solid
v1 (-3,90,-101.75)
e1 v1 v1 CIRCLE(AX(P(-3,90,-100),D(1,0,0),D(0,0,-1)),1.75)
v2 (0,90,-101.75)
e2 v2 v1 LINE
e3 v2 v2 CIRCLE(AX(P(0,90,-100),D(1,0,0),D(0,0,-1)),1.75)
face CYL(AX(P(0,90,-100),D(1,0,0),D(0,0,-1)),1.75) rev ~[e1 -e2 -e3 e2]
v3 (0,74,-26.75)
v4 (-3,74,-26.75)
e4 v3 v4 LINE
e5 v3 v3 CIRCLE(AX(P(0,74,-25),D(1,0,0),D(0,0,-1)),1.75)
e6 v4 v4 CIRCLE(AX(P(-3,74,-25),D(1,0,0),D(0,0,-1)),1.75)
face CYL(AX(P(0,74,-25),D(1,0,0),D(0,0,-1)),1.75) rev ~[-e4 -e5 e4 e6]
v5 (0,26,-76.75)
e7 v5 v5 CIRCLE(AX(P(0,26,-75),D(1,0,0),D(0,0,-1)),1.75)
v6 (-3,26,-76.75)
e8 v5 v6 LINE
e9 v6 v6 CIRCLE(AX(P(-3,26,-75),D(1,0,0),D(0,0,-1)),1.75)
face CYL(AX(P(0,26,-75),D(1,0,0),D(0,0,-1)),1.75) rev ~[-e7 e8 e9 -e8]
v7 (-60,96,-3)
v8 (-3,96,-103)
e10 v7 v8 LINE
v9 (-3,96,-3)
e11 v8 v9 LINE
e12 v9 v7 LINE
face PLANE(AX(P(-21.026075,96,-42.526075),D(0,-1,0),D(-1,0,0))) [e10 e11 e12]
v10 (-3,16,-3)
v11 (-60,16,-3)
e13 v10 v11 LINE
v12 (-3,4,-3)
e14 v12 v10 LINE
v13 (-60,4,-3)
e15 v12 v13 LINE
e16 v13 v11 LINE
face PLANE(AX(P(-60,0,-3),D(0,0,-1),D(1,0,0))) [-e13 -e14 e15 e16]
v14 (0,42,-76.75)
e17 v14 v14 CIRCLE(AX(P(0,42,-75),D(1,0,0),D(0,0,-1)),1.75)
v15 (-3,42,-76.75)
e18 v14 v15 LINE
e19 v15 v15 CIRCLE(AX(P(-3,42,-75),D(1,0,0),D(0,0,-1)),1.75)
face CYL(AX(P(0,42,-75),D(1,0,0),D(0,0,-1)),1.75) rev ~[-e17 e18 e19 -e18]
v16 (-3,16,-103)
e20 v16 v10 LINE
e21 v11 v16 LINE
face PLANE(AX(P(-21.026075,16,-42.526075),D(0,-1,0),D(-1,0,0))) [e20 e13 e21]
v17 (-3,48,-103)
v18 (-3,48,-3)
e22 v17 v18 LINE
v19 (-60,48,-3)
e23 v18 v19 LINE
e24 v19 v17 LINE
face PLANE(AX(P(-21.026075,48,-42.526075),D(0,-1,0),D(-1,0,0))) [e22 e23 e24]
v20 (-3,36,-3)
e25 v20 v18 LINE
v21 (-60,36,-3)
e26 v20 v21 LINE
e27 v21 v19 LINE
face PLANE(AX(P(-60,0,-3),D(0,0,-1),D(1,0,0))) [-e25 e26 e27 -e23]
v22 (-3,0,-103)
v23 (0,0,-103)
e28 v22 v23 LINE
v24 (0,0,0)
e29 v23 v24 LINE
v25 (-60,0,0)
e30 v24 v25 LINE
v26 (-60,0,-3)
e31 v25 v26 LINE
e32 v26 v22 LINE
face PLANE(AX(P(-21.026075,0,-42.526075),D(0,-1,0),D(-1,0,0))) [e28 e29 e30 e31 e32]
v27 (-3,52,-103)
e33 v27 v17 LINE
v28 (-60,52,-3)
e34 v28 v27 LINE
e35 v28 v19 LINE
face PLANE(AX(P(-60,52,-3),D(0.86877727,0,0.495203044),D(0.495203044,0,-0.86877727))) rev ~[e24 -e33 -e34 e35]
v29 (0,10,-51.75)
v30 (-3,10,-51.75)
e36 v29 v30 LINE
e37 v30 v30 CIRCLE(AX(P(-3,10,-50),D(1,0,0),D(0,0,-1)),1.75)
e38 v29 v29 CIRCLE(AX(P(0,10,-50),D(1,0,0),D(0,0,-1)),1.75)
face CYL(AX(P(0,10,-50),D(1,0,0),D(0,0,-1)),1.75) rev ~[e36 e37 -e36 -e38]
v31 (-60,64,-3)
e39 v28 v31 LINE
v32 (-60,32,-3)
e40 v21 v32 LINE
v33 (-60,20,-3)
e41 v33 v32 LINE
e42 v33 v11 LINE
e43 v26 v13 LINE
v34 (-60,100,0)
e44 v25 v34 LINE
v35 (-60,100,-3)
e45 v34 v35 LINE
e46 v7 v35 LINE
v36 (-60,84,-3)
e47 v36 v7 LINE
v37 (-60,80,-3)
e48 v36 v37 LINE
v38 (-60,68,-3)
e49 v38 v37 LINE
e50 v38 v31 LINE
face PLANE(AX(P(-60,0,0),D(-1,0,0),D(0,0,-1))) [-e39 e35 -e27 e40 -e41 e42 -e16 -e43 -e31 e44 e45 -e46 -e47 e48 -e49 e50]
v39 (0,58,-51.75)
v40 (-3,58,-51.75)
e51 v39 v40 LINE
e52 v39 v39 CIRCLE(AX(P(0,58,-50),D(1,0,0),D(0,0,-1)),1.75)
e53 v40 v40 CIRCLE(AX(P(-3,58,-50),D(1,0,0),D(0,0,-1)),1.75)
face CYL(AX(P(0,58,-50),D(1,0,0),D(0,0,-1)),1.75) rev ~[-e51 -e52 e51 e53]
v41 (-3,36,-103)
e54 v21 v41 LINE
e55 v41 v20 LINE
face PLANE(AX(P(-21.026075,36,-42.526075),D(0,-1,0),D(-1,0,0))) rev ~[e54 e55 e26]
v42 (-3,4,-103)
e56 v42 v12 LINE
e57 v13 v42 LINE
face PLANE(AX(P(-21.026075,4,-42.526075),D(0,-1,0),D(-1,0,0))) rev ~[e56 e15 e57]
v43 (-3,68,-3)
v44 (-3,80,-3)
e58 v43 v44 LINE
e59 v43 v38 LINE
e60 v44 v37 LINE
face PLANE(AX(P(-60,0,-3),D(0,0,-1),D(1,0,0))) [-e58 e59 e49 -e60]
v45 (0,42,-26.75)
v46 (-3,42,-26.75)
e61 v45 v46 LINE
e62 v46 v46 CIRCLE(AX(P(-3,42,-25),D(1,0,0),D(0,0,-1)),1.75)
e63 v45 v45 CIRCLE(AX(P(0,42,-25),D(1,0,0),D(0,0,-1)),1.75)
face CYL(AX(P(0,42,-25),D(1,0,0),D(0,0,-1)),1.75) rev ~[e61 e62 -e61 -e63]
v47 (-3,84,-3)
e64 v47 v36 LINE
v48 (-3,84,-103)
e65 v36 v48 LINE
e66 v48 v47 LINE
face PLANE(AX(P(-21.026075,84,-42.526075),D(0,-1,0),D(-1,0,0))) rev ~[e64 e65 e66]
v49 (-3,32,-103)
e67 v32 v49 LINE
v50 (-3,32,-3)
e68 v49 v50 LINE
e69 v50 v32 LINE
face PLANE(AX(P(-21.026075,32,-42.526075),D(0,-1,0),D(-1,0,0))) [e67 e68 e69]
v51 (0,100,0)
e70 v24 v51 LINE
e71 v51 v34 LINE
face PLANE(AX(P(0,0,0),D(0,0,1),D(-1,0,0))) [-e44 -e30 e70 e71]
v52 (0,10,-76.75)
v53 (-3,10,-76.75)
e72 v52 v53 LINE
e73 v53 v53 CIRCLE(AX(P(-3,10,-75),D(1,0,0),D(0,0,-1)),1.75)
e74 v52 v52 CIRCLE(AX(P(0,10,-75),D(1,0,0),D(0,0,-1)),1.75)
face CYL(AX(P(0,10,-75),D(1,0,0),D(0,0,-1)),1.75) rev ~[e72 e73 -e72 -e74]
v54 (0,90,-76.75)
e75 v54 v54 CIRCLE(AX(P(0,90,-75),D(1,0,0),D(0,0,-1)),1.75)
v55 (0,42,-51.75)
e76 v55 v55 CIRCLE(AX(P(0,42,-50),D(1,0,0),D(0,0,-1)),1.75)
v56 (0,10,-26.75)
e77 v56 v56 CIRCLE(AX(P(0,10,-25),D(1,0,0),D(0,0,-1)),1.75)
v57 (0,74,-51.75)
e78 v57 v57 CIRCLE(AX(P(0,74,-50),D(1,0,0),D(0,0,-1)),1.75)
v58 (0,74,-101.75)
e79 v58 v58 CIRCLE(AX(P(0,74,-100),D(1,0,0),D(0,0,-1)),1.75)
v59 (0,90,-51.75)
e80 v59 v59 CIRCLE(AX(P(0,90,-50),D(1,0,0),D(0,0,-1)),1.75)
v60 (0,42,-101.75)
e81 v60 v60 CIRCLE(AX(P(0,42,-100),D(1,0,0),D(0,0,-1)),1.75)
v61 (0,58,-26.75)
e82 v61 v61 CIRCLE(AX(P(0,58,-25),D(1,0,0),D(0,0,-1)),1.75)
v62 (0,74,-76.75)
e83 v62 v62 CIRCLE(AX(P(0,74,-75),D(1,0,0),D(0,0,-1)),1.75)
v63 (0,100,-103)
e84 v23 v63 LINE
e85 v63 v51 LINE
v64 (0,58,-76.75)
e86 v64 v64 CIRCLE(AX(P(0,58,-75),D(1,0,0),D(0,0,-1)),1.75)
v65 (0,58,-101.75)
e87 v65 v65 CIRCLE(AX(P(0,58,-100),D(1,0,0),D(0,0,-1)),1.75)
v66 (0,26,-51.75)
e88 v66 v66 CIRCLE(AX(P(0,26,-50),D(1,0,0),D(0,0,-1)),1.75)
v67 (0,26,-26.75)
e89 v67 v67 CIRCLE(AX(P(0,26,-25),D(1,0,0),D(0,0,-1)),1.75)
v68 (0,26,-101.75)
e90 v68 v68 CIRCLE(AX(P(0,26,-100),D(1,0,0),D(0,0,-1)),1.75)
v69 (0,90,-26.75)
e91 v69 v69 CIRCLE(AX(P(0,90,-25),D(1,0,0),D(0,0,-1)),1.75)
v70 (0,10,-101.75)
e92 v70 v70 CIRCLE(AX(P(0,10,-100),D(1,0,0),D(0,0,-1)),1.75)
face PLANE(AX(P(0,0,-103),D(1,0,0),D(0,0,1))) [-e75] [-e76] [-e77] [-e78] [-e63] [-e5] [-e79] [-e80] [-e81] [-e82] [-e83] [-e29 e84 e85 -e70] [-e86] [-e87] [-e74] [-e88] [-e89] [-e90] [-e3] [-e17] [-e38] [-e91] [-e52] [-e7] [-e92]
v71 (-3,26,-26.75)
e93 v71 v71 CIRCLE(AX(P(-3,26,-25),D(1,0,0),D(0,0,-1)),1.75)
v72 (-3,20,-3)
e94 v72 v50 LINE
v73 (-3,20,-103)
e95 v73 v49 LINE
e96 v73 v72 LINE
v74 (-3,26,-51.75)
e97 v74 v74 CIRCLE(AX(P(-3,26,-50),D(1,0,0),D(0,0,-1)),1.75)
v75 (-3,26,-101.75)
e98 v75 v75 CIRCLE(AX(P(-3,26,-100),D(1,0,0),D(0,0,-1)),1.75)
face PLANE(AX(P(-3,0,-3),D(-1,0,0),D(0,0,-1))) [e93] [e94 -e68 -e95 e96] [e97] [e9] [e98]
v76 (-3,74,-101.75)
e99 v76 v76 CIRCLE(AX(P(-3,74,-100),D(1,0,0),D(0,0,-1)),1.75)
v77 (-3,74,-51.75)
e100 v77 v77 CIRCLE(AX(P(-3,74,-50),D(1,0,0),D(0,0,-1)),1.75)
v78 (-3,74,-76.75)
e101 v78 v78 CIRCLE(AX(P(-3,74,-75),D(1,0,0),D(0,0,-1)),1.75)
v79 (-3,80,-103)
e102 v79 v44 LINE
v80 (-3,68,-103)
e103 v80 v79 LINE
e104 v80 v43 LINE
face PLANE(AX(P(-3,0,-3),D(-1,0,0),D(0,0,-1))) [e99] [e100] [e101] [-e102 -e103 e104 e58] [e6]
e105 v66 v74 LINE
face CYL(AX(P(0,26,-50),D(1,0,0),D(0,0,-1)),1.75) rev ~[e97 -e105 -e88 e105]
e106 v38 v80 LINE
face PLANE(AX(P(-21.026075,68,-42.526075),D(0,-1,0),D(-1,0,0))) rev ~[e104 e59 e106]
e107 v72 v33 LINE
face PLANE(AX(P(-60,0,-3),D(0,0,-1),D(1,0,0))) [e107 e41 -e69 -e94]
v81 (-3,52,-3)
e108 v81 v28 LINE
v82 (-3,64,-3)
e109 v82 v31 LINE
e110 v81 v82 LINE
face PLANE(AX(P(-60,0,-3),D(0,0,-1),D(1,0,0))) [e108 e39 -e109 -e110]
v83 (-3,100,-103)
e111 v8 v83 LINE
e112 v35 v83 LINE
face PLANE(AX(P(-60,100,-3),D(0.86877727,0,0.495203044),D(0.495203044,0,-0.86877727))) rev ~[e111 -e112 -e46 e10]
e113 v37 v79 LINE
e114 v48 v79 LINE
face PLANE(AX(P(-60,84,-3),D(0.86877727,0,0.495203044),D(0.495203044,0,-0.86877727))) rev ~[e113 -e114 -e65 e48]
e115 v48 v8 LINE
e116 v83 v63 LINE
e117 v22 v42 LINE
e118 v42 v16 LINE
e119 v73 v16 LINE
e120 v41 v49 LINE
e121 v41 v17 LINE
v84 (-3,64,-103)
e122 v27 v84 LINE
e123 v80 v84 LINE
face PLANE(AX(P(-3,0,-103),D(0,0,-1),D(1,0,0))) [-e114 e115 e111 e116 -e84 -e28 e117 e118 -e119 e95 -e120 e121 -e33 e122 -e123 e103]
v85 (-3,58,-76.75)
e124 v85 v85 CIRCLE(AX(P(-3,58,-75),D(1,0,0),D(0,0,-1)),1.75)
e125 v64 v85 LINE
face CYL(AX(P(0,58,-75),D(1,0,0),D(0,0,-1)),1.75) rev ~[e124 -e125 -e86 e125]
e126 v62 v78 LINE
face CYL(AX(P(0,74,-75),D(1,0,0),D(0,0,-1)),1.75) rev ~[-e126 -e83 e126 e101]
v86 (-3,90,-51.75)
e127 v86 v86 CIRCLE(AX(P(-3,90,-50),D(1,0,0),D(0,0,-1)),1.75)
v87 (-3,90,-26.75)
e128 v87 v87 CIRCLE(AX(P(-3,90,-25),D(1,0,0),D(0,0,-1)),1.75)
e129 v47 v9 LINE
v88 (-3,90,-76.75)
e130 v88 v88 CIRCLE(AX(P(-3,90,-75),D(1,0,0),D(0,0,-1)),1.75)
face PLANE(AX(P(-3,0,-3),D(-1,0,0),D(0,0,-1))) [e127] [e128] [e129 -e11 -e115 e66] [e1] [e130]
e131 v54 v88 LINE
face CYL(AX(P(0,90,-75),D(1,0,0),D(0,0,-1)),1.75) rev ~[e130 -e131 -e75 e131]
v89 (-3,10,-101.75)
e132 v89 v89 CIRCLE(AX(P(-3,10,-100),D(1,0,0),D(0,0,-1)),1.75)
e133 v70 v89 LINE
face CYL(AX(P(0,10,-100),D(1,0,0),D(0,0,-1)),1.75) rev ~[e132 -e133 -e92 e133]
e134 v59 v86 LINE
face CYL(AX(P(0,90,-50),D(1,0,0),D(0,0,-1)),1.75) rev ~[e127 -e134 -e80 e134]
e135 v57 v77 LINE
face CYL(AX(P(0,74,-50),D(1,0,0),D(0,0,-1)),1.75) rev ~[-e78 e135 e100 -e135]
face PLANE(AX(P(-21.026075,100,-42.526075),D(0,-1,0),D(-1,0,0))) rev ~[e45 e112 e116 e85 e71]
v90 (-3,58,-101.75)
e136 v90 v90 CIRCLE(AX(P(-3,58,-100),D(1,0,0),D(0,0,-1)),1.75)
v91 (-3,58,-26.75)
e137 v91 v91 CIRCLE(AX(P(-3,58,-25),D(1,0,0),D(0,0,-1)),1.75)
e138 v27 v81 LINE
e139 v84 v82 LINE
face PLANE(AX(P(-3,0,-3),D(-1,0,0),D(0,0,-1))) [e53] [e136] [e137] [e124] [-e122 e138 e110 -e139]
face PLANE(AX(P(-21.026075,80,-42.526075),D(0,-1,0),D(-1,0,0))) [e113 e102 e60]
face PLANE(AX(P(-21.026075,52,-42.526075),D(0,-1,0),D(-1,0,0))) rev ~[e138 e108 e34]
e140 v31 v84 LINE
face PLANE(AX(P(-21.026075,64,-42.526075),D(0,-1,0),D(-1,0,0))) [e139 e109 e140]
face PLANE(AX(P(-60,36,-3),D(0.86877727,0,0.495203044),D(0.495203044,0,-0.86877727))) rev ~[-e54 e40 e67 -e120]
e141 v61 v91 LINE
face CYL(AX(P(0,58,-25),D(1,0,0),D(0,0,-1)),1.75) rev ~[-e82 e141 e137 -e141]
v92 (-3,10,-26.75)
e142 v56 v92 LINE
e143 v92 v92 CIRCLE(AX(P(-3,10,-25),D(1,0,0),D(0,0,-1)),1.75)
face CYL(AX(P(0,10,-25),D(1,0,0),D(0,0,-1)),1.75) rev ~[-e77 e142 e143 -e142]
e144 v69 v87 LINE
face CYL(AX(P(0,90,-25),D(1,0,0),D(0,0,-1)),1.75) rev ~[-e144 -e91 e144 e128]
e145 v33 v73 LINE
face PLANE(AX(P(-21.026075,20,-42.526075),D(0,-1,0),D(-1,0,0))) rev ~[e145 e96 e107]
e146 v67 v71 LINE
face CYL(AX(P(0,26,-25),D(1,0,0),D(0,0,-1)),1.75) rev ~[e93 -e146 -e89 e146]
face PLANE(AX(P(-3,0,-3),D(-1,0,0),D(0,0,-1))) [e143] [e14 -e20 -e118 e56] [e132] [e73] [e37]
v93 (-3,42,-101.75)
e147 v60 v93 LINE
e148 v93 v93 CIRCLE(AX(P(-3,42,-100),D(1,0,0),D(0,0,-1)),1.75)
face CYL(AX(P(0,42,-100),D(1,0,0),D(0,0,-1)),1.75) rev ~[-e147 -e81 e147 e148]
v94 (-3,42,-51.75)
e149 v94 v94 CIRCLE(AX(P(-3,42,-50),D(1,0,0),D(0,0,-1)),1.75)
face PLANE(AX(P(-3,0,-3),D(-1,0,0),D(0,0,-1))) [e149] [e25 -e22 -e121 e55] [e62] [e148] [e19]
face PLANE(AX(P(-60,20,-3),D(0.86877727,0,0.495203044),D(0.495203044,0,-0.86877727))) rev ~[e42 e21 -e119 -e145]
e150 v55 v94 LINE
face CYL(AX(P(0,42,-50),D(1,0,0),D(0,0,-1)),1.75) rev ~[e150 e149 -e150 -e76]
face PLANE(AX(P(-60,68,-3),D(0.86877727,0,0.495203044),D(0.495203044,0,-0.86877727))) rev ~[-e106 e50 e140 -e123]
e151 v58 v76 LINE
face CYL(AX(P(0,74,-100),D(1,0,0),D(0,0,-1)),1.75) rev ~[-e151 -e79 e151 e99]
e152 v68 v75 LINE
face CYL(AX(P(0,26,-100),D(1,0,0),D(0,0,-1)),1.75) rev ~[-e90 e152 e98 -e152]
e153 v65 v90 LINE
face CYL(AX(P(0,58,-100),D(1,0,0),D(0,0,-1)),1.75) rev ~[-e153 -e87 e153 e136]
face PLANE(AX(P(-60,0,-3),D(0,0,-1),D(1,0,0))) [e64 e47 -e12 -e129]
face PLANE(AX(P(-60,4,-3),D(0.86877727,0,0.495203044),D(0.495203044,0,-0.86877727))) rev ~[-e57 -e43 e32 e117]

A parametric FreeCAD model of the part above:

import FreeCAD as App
import Part
import Sketcher
from FreeCAD import Vector


def add_polygon(sketch, points):
    """Adds a closed chain of lines whose ends are joined by coincident constraints."""
    first, n = sketch.GeometryCount, len(points)
    for a, b in zip(points, points[1:] + points[:1]):
        sketch.addGeometry(Part.LineSegment(App.Vector(*a, 0), App.Vector(*b, 0)), False)
    for i in range(n):
        sketch.addConstraint(Sketcher.Constraint("Coincident", first + i, 2, first + (i + 1) % n, 1))

doc = App.newDocument("Part")
params = doc.addObject("Spreadsheet::Sheet", "Params")
for row, (alias, value) in enumerate([
    ("sketch1_width", "60 mm"),
    ("sketch1_width2", "3 mm"),
    ("sketch1_height", "103 mm"),
    ("pad1_length", "100 mm"),
    ("sketch2_width", "57 mm"),
    ("sketch2_height", "100 mm"),
    ("pad2_length", "4 mm"),
    ("linearpattern_pitch", "16 mm"),
    ("sketch3_diameter", "3.5 mm"),
    ("pocket1_length", "10 mm"),
], start=1):
    params.set(f"A{row}", alias)
    params.set(f"B{row}", "=" + value)
    params.setAlias(f"B{row}", alias)

body = doc.addObject("PartDesign::Body", "Body")

sketch1 = body.newObject("Sketcher::SketchObject", "Sketch")
sketch1.AttachmentSupport = (doc.getObject("XZ_Plane"), [""])
sketch1.MapMode = "FlatFace"
add_polygon(sketch1, [(-60, 0), (0, 0), (0, -103), (-3, -103), (-3, -3), (-60, -3)])
sketch1.addConstraint(Sketcher.Constraint("Horizontal", 0))
sketch1.addConstraint(Sketcher.Constraint("Vertical", 1))
sketch1.addConstraint(Sketcher.Constraint("Horizontal", 2))
sketch1.addConstraint(Sketcher.Constraint("Vertical", 3))
sketch1.addConstraint(Sketcher.Constraint("Horizontal", 4))
sketch1.addConstraint(Sketcher.Constraint("Vertical", 5))
sketch1.addConstraint(Sketcher.Constraint("Coincident", 0, 2, -1, 1))
sketch1.addConstraint(Sketcher.Constraint("Equal", 2, 5))
sketch1.addConstraint(Sketcher.Constraint("DistanceX", 0, 1, 0, 2, 60.0))
sketch1.addConstraint(Sketcher.Constraint("DistanceX", 2, 2, 2, 1, 3.0))
sketch1.addConstraint(Sketcher.Constraint("DistanceY", 1, 2, 1, 1, 103.0))
sketch1.setExpression("Constraints[14]", "Params.sketch1_width")
sketch1.setExpression("Constraints[15]", "Params.sketch1_width2")
sketch1.setExpression("Constraints[16]", "Params.sketch1_height")
pad1 = body.newObject("PartDesign::Pad", "Pad")
pad1.Profile = sketch1
pad1.setExpression("Length", "Params.pad1_length")
pad1.Reversed = True

sketch2 = body.newObject("Sketcher::SketchObject", "Sketch001")
sketch2.AttachmentSupport = (doc.getObject("XZ_Plane"), [""])
sketch2.MapMode = "FlatFace"
sketch2.AttachmentOffset = App.Placement(Vector(0, 0, -100), App.Rotation())
add_polygon(sketch2, [(-3, -103), (-60, -3), (-3, -3)])
sketch2.addConstraint(Sketcher.Constraint("Horizontal", 1))
sketch2.addConstraint(Sketcher.Constraint("Vertical", 2))
sketch2.addConstraint(Sketcher.Constraint("DistanceX", 1, 1, 1, 2, 57.0))
sketch2.addConstraint(Sketcher.Constraint("DistanceY", 2, 2, 2, 1, 100.0))
sketch2.addConstraint(Sketcher.Constraint("DistanceX", 0, 2, -1, 1, 60.0))
sketch2.addConstraint(Sketcher.Constraint("DistanceY", 0, 2, -1, 1, 3.0))
sketch2.setExpression("Constraints[5]", "Params.sketch2_width")
sketch2.setExpression("Constraints[6]", "Params.sketch2_height")
pad2 = body.newObject("PartDesign::Pad", "Pad001")
pad2.Profile = sketch2
pad2.setExpression("Length", "Params.pad2_length")
doc.recompute()

linearpattern = body.newObject("PartDesign::LinearPattern", "LinearPattern")
linearpattern.Originals = [pad2]
linearpattern.Direction = (doc.getObject("Y_Axis"), [""])
linearpattern.Mode = "offset"
linearpattern.setExpression("Offset", "Params.linearpattern_pitch")
linearpattern.Occurrences = 7
linearpattern.Reversed = True
body.Tip = linearpattern

sketch3 = body.newObject("Sketcher::SketchObject", "Sketch002")
sketch3.AttachmentSupport = (doc.getObject("YZ_Plane"), [""])
sketch3.MapMode = "FlatFace"
sketch3.addGeometry(Part.Circle(Vector(10, -25, 0), Vector(0, 0, 1), 1.8), False)
sketch3.addGeometry(Part.Circle(Vector(10, -50, 0), Vector(0, 0, 1), 1.8), False)
sketch3.addGeometry(Part.Circle(Vector(10, -75, 0), Vector(0, 0, 1), 1.8), False)
sketch3.addGeometry(Part.Circle(Vector(10, -100, 0), Vector(0, 0, 1), 1.8), False)
sketch3.addGeometry(Part.Circle(Vector(26, -50, 0), Vector(0, 0, 1), 1.8), False)
sketch3.addGeometry(Part.Circle(Vector(26, -75, 0), Vector(0, 0, 1), 1.8), False)
sketch3.addGeometry(Part.Circle(Vector(26, -100, 0), Vector(0, 0, 1), 1.8), False)
sketch3.addGeometry(Part.Circle(Vector(42, -50, 0), Vector(0, 0, 1), 1.8), False)
sketch3.addGeometry(Part.Circle(Vector(42, -75, 0), Vector(0, 0, 1), 1.8), False)
sketch3.addGeometry(Part.Circle(Vector(42, -100, 0), Vector(0, 0, 1), 1.8), False)
sketch3.addGeometry(Part.Circle(Vector(58, -50, 0), Vector(0, 0, 1), 1.8), False)
sketch3.addGeometry(Part.Circle(Vector(58, -75, 0), Vector(0, 0, 1), 1.8), False)
sketch3.addGeometry(Part.Circle(Vector(58, -100, 0), Vector(0, 0, 1), 1.8), False)
sketch3.addGeometry(Part.Circle(Vector(74, -50, 0), Vector(0, 0, 1), 1.8), False)
sketch3.addGeometry(Part.Circle(Vector(74, -75, 0), Vector(0, 0, 1), 1.8), False)
sketch3.addGeometry(Part.Circle(Vector(74, -100, 0), Vector(0, 0, 1), 1.8), False)
sketch3.addGeometry(Part.Circle(Vector(90, -50, 0), Vector(0, 0, 1), 1.8), False)
sketch3.addGeometry(Part.Circle(Vector(90, -75, 0), Vector(0, 0, 1), 1.8), False)
sketch3.addGeometry(Part.Circle(Vector(90, -100, 0), Vector(0, 0, 1), 1.8), False)
sketch3.addGeometry(Part.Circle(Vector(26, -25, 0), Vector(0, 0, 1), 1.8), False)
sketch3.addGeometry(Part.Circle(Vector(42, -25, 0), Vector(0, 0, 1), 1.8), False)
sketch3.addGeometry(Part.Circle(Vector(58, -25, 0), Vector(0, 0, 1), 1.8), False)
sketch3.addGeometry(Part.Circle(Vector(74, -25, 0), Vector(0, 0, 1), 1.8), False)
sketch3.addGeometry(Part.Circle(Vector(90, -25, 0), Vector(0, 0, 1), 1.8), False)
sketch3.addConstraint(Sketcher.Constraint("Equal", 0, 1))
sketch3.addConstraint(Sketcher.Constraint("Equal", 1, 2))
sketch3.addConstraint(Sketcher.Constraint("Equal", 2, 3))
sketch3.addConstraint(Sketcher.Constraint("Equal", 3, 4))
sketch3.addConstraint(Sketcher.Constraint("Equal", 4, 5))
sketch3.addConstraint(Sketcher.Constraint("Equal", 5, 6))
sketch3.addConstraint(Sketcher.Constraint("Equal", 6, 7))
sketch3.addConstraint(Sketcher.Constraint("Equal", 7, 8))
sketch3.addConstraint(Sketcher.Constraint("Equal", 8, 9))
sketch3.addConstraint(Sketcher.Constraint("Equal", 9, 10))
sketch3.addConstraint(Sketcher.Constraint("Equal", 10, 11))
sketch3.addConstraint(Sketcher.Constraint("Equal", 11, 12))
sketch3.addConstraint(Sketcher.Constraint("Equal", 12, 13))
sketch3.addConstraint(Sketcher.Constraint("Equal", 13, 14))
sketch3.addConstraint(Sketcher.Constraint("Equal", 14, 15))
sketch3.addConstraint(Sketcher.Constraint("Equal", 15, 16))
sketch3.addConstraint(Sketcher.Constraint("Equal", 16, 17))
sketch3.addConstraint(Sketcher.Constraint("Equal", 17, 18))
sketch3.addConstraint(Sketcher.Constraint("Equal", 18, 19))
sketch3.addConstraint(Sketcher.Constraint("Equal", 19, 20))
sketch3.addConstraint(Sketcher.Constraint("Equal", 20, 21))
sketch3.addConstraint(Sketcher.Constraint("Equal", 21, 22))
sketch3.addConstraint(Sketcher.Constraint("Equal", 22, 23))
sketch3.addConstraint(Sketcher.Constraint("Horizontal", 1, 3, 4, 3))
sketch3.addConstraint(Sketcher.Constraint("Horizontal", 2, 3, 5, 3))
sketch3.addConstraint(Sketcher.Constraint("Horizontal", 3, 3, 6, 3))
sketch3.addConstraint(Sketcher.Constraint("Horizontal", 4, 3, 7, 3))
sketch3.addConstraint(Sketcher.Constraint("Horizontal", 5, 3, 8, 3))
sketch3.addConstraint(Sketcher.Constraint("Horizontal", 6, 3, 9, 3))
sketch3.addConstraint(Sketcher.Constraint("Horizontal", 7, 3, 10, 3))
sketch3.addConstraint(Sketcher.Constraint("Horizontal", 8, 3, 11, 3))
sketch3.addConstraint(Sketcher.Constraint("Horizontal", 9, 3, 12, 3))
sketch3.addConstraint(Sketcher.Constraint("Horizontal", 10, 3, 13, 3))
sketch3.addConstraint(Sketcher.Constraint("Horizontal", 11, 3, 14, 3))
sketch3.addConstraint(Sketcher.Constraint("Horizontal", 12, 3, 15, 3))
sketch3.addConstraint(Sketcher.Constraint("Horizontal", 13, 3, 16, 3))
sketch3.addConstraint(Sketcher.Constraint("Horizontal", 14, 3, 17, 3))
sketch3.addConstraint(Sketcher.Constraint("Horizontal", 15, 3, 18, 3))
sketch3.addConstraint(Sketcher.Constraint("Horizontal", 0, 3, 19, 3))
sketch3.addConstraint(Sketcher.Constraint("Horizontal", 19, 3, 20, 3))
sketch3.addConstraint(Sketcher.Constraint("Horizontal", 20, 3, 21, 3))
sketch3.addConstraint(Sketcher.Constraint("Horizontal", 21, 3, 22, 3))
sketch3.addConstraint(Sketcher.Constraint("Horizontal", 22, 3, 23, 3))
sketch3.addConstraint(Sketcher.Constraint("Vertical", 0, 3, 1, 3))
sketch3.addConstraint(Sketcher.Constraint("Vertical", 1, 3, 2, 3))
sketch3.addConstraint(Sketcher.Constraint("Vertical", 2, 3, 3, 3))
sketch3.addConstraint(Sketcher.Constraint("Vertical", 4, 3, 5, 3))
sketch3.addConstraint(Sketcher.Constraint("Vertical", 5, 3, 6, 3))
sketch3.addConstraint(Sketcher.Constraint("Vertical", 7, 3, 8, 3))
sketch3.addConstraint(Sketcher.Constraint("Vertical", 8, 3, 9, 3))
sketch3.addConstraint(Sketcher.Constraint("Vertical", 10, 3, 11, 3))
sketch3.addConstraint(Sketcher.Constraint("Vertical", 11, 3, 12, 3))
sketch3.addConstraint(Sketcher.Constraint("Vertical", 13, 3, 14, 3))
sketch3.addConstraint(Sketcher.Constraint("Vertical", 14, 3, 15, 3))
sketch3.addConstraint(Sketcher.Constraint("Vertical", 16, 3, 17, 3))
sketch3.addConstraint(Sketcher.Constraint("Vertical", 17, 3, 18, 3))
sketch3.addConstraint(Sketcher.Constraint("Vertical", 6, 3, 19, 3))
sketch3.addConstraint(Sketcher.Constraint("Vertical", 9, 3, 20, 3))
sketch3.addConstraint(Sketcher.Constraint("Vertical", 12, 3, 21, 3))
sketch3.addConstraint(Sketcher.Constraint("Vertical", 15, 3, 22, 3))
sketch3.addConstraint(Sketcher.Constraint("Vertical", 18, 3, 23, 3))
sketch3.addConstraint(Sketcher.Constraint("Diameter", 0, 3.5))
sketch3.addConstraint(Sketcher.Constraint("DistanceX", -1, 1, 0, 3, 10.0))
sketch3.addConstraint(Sketcher.Constraint("DistanceY", 0, 3, -1, 1, 25.0))
sketch3.addConstraint(Sketcher.Constraint("DistanceY", 1, 3, -1, 1, 50.0))
sketch3.addConstraint(Sketcher.Constraint("DistanceY", 2, 3, -1, 1, 75.0))
sketch3.addConstraint(Sketcher.Constraint("DistanceY", 3, 3, -1, 1, 100.0))
sketch3.addConstraint(Sketcher.Constraint("DistanceX", -1, 1, 4, 3, 26.0))
sketch3.addConstraint(Sketcher.Constraint("DistanceX", -1, 1, 7, 3, 42.0))
sketch3.addConstraint(Sketcher.Constraint("DistanceX", -1, 1, 10, 3, 58.0))
sketch3.addConstraint(Sketcher.Constraint("DistanceX", -1, 1, 13, 3, 74.0))
sketch3.addConstraint(Sketcher.Constraint("DistanceX", -1, 1, 16, 3, 90.0))
sketch3.setExpression("Constraints[61]", "Params.sketch3_diameter")
pocket1 = body.newObject("PartDesign::Pocket", "Pocket")
pocket1.Profile = sketch3
pocket1.setExpression("Length", "Params.pocket1_length")

doc.recompute()
